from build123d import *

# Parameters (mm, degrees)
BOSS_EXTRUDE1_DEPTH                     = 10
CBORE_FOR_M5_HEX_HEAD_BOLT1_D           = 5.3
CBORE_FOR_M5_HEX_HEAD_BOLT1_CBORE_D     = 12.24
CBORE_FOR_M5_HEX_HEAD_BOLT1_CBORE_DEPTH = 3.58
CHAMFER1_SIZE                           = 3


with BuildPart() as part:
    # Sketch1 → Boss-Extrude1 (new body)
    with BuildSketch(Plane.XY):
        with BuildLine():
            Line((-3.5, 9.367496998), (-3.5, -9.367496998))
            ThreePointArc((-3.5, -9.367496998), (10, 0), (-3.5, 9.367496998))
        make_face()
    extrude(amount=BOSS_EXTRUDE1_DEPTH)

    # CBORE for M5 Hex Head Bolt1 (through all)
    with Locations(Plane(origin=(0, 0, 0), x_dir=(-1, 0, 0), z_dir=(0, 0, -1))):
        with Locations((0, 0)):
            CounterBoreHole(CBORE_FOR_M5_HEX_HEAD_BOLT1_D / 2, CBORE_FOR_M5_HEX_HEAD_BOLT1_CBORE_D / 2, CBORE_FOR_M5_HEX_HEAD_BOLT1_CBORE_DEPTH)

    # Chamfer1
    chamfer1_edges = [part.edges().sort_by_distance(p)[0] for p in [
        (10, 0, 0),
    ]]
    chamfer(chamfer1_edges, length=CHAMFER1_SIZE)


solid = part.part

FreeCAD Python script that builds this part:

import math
import FreeCAD as App
import Part
import Sketcher


def edges_at(feature, points):
    """Names of the edges that pass closest to the given points."""
    edges = feature.Shape.Edges
    near = lambda p: min(range(len(edges)), key=lambda i: edges[i].distToShape(Part.Vertex(*p))[0])
    return sorted({f"Edge{near(p) + 1}" for p in points})

doc = App.newDocument("Part")
body = doc.addObject("PartDesign::Body", "Body")

sketch1 = body.newObject("Sketcher::SketchObject", "Sketch")
sketch1.AttachmentSupport = (doc.getObject("XY_Plane"), [""])
sketch1.MapMode = "FlatFace"
sketch1.addGeometry([
    Part.LineSegment(App.Vector(-3.5, 9.367497, 0), App.Vector(-3.5, -9.367497, 0)),
    Part.ArcOfCircle(Part.Circle(App.Vector(0, 0, 0), App.Vector(0, 0, 1), 10), math.radians(-110.487315), math.radians(110.487315)),
], False)
sketch1.addConstraint([
    Sketcher.Constraint("Coincident", 0, 1, 1, 2),
    Sketcher.Constraint("Coincident", 1, 1, 0, 2),
    Sketcher.Constraint("Vertical", 0),
    Sketcher.Constraint("Coincident", 1, 3, -1, 1),
    Sketcher.Constraint("Radius", 1, 10.0),
    Sketcher.Constraint("DistanceX", 0, 1, -1, 1, 3.5),
])
pad1 = body.newObject("PartDesign::Pad", "Pad")
pad1.Profile = sketch1
pad1.Length = 10

sketch2 = body.newObject("Sketcher::SketchObject", "Sketch001")
sketch2.AttachmentSupport = (doc.getObject("XY_Plane"), [""])
sketch2.MapMode = "FlatFace"
sketch2.addGeometry(Part.Circle(App.Vector(0, 0, 0), App.Vector(0, 0, 1), 2.65), False)
sketch2.addConstraint([
    Sketcher.Constraint("Coincident", 0, 3, -1, 1),
    Sketcher.Constraint("Diameter", 0, 5.3),
])
doc.recompute()
hole = body.newObject("PartDesign::Hole", "Hole")
hole.Profile = sketch2
hole.ThreadType = "None"
hole.Diameter = 5.3
hole.DepthType = "ThroughAll"
hole.HoleCutType = "Counterbore"
hole.HoleCutDiameter = 12.24
hole.HoleCutDepth = 3.58
hole.Reversed = True
doc.recompute()

chamfer = body.newObject("PartDesign::Chamfer", "Chamfer")
chamfer.Base = (hole, edges_at(hole, [(10, 0, 0)]))
chamfer.Size = 3

doc.recompute()
